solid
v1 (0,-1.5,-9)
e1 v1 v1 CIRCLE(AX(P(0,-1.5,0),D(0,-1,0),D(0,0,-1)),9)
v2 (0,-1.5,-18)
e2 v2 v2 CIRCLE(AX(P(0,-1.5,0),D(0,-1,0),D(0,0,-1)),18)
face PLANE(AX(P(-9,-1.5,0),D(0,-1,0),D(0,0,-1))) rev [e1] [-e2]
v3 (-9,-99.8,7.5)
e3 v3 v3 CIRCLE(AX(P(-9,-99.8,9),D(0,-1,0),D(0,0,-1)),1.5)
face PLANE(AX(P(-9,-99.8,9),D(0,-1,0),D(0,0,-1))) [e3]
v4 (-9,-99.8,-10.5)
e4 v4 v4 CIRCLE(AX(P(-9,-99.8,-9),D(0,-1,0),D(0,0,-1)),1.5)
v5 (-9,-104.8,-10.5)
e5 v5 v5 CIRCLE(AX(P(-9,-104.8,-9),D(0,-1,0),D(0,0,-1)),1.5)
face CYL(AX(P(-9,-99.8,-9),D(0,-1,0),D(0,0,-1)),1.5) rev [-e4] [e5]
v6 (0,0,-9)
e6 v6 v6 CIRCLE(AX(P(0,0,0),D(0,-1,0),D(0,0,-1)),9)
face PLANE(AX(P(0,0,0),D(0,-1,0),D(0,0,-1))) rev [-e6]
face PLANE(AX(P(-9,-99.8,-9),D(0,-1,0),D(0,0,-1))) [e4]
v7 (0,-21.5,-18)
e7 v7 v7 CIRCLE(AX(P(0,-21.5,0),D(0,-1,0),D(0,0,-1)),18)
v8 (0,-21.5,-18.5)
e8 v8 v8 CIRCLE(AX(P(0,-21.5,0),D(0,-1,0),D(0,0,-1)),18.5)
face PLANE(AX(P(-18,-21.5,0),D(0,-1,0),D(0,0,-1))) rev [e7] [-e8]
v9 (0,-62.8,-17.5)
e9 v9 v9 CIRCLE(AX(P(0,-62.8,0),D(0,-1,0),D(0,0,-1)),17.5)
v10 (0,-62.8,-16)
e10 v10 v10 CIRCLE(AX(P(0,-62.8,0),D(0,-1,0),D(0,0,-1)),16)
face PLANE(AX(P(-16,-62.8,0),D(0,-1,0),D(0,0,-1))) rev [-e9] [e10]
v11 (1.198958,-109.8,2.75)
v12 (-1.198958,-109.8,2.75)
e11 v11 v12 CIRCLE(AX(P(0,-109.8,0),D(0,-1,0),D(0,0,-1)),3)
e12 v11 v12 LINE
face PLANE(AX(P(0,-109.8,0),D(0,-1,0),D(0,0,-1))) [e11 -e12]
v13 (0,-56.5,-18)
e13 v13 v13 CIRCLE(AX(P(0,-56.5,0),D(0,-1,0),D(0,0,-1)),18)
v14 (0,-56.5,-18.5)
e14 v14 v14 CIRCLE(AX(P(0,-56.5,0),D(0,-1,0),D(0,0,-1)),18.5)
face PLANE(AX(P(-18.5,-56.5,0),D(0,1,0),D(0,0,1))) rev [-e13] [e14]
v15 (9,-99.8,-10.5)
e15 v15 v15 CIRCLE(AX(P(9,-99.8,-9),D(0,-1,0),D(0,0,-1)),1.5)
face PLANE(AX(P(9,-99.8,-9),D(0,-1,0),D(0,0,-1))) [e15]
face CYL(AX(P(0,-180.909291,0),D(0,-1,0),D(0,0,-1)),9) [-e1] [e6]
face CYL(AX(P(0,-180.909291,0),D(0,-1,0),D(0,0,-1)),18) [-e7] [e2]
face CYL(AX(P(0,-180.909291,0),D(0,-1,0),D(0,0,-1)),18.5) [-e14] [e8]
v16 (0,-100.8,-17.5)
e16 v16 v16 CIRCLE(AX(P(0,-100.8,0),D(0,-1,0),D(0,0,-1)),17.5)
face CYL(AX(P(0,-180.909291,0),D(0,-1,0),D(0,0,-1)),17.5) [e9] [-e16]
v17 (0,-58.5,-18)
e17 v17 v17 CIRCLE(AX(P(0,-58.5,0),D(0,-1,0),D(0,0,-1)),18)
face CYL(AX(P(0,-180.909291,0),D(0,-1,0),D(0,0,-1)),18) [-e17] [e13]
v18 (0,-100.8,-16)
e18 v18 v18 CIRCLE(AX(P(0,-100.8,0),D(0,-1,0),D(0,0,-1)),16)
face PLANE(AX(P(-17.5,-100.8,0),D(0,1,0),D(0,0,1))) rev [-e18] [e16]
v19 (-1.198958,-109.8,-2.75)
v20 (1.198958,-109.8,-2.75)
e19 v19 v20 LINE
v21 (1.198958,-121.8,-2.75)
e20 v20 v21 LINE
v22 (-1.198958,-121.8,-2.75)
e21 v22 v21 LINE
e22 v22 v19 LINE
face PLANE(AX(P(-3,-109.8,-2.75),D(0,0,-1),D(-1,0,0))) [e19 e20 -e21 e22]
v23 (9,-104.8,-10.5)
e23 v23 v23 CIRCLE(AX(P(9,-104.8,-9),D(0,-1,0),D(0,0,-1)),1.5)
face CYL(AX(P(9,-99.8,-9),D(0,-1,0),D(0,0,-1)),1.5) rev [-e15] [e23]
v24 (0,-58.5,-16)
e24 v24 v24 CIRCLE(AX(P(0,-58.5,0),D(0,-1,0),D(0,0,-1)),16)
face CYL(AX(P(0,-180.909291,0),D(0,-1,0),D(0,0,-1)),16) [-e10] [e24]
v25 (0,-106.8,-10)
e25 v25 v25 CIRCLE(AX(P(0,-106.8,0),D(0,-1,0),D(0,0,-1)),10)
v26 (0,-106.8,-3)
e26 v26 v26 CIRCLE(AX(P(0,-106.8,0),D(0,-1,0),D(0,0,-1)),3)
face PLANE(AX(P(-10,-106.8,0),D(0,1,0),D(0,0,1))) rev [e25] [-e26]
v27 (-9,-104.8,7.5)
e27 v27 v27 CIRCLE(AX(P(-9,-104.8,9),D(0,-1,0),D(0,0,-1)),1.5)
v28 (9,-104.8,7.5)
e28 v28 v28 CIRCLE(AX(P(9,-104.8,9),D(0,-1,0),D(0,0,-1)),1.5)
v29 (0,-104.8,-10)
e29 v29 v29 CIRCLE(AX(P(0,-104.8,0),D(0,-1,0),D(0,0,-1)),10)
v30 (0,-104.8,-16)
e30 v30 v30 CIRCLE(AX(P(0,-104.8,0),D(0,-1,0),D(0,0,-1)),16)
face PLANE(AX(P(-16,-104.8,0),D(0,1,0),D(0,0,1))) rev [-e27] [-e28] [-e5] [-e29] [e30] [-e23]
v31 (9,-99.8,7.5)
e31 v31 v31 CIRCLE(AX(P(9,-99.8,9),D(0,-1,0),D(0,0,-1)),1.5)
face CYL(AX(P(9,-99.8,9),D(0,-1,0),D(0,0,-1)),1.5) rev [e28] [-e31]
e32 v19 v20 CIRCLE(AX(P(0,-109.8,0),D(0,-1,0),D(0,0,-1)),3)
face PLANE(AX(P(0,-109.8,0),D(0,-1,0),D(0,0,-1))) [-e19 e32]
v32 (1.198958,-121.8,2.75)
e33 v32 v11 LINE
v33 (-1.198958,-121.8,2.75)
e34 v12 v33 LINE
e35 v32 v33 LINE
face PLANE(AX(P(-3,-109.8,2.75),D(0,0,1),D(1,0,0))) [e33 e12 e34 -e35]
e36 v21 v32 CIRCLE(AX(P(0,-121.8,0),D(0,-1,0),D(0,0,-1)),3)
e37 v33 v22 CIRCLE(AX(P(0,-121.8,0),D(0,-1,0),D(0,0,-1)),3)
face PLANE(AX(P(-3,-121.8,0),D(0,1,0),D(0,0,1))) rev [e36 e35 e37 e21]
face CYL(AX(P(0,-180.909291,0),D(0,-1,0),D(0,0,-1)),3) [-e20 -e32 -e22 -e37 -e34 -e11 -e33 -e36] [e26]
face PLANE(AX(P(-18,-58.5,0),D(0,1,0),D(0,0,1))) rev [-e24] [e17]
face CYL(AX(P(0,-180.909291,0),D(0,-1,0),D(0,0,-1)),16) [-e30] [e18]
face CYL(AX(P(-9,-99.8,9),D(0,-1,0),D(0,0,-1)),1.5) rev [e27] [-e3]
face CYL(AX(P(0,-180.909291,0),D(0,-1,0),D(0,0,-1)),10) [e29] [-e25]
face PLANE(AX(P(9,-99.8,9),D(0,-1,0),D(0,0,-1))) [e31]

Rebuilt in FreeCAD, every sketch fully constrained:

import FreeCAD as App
import Part
import Sketcher

V = App.Vector
Q = App.Units.Quantity


def add_polygon(sketch, points):
    """Adds a closed chain of lines whose ends are joined by coincident constraints."""
    first, n = sketch.GeometryCount, len(points)
    for a, b in zip(points, points[1:] + points[:1]):
        sketch.addGeometry(Part.LineSegment(App.Vector(*a, 0), App.Vector(*b, 0)), False)
    for i in range(n):
        sketch.addConstraint(Sketcher.Constraint("Coincident", first + i, 2, first + (i + 1) % n, 1))

doc = App.newDocument("Part")
body = doc.addObject("PartDesign::Body", "Body")

sketch1 = body.newObject("Sketcher::SketchObject", "Sketch")
sketch1.AttachmentSupport = (doc.getObject("XY_Plane"), [""])
sketch1.MapMode = "FlatFace"
add_polygon(sketch1, [(0, 0), (-9, 0), (-9, -1.5), (-18, -1.5), (-18, -21.5), (-18.5, -21.5), (-18.5, -56.5), (-18, -56.5), (-18, -58.5), (-16, -58.5), (-16, -62.8), (-17.5, -62.8), (-17.5, -100.8), (-16, -100.8), (-16, -104.8), (-10, -104.8), (-10, -106.8), (-3, -106.8), (-3, -121.8), (0, -121.8)])
sketch1.addConstraint(Sketcher.Constraint("Horizontal", 0))
sketch1.addConstraint(Sketcher.Constraint("Vertical", 1))
sketch1.addConstraint(Sketcher.Constraint("Horizontal", 2))
sketch1.addConstraint(Sketcher.Constraint("Vertical", 3))
sketch1.addConstraint(Sketcher.Constraint("Horizontal", 4))
sketch1.addConstraint(Sketcher.Constraint("Vertical", 5))
sketch1.addConstraint(Sketcher.Constraint("Horizontal", 6))
sketch1.addConstraint(Sketcher.Constraint("Vertical", 7))
sketch1.addConstraint(Sketcher.Constraint("Horizontal", 8))
sketch1.addConstraint(Sketcher.Constraint("Vertical", 9))
sketch1.addConstraint(Sketcher.Constraint("Horizontal", 10))
sketch1.addConstraint(Sketcher.Constraint("Vertical", 11))
sketch1.addConstraint(Sketcher.Constraint("Horizontal", 12))
sketch1.addConstraint(Sketcher.Constraint("Vertical", 13))
sketch1.addConstraint(Sketcher.Constraint("Horizontal", 14))
sketch1.addConstraint(Sketcher.Constraint("Vertical", 15))
sketch1.addConstraint(Sketcher.Constraint("Horizontal", 16))
sketch1.addConstraint(Sketcher.Constraint("Vertical", 17))
sketch1.addConstraint(Sketcher.Constraint("Horizontal", 18))
sketch1.addConstraint(Sketcher.Constraint("Vertical", 19))
sketch1.addConstraint(Sketcher.Constraint("Coincident", 19, 2, -1, 1))
sketch1.addConstraint(Sketcher.Constraint("Vertical", 3, 2, 6, 2))
sketch1.addConstraint(Sketcher.Constraint("Vertical", 9, 2, 12, 2))
sketch1.addConstraint(Sketcher.Constraint("Equal", 0, 2))
sketch1.addConstraint(Sketcher.Constraint("Equal", 12, 1))
sketch1.addConstraint(Sketcher.Constraint("Equal", 8, 7))
sketch1.addConstraint(Sketcher.Constraint("Equal", 7, 15))
sketch1.addConstraint(Sketcher.Constraint("DistanceX", 0, 2, 0, 1, Q("9 mm")))
sketch1.addConstraint(Sketcher.Constraint("DistanceX", 8, 1, 8, 2, Q("2 mm")))
sketch1.addConstraint(Sketcher.Constraint("DistanceX", 14, 1, 14, 2, Q("6 mm")))
sketch1.addConstraint(Sketcher.Constraint("DistanceX", 16, 1, 16, 2, Q("7 mm")))
sketch1.addConstraint(Sketcher.Constraint("DistanceY", 3, 2, 3, 1, Q("20 mm")))
sketch1.addConstraint(Sketcher.Constraint("DistanceY", 5, 2, 5, 1, Q("35 mm")))
sketch1.addConstraint(Sketcher.Constraint("DistanceY", 11, 2, 11, 1, Q("38 mm")))
sketch1.addConstraint(Sketcher.Constraint("DistanceY", 13, 2, 13, 1, Q("4 mm")))
sketch1.addConstraint(Sketcher.Constraint("DistanceY", 17, 2, 17, 1, Q("15 mm")))
sketch1.addConstraint(Sketcher.Constraint("DistanceX", 4, 2, 4, 1, Q("0.5 mm")))
sketch1.addConstraint(Sketcher.Constraint("DistanceX", 10, 2, 10, 1, Q("1.5 mm")))
sketch1.addConstraint(Sketcher.Constraint("DistanceY", 9, 2, 9, 1, Q("4.3 mm")))
revolution = body.newObject("PartDesign::Revolution", "Revolution")
revolution.Profile = sketch1
revolution.ReferenceAxis = (sketch1, ["V_Axis"])
revolution.Angle = 360

sketch2 = body.newObject("Sketcher::SketchObject", "Sketch001")
sketch2.AttachmentSupport = (doc.getObject("XZ_Plane"), [""])
sketch2.MapMode = "FlatFace"
sketch2.AttachmentOffset = App.Placement(V(0, 0, 121.8), App.Rotation())
add_polygon(sketch2, [(-33, 33), (-33, -33), (33, -33), (33, 33)])
add_polygon(sketch2, [(3, -3), (-3, -3), (-3, 3), (3, 3)])
sketch2.addConstraint(Sketcher.Constraint("Vertical", 0))
sketch2.addConstraint(Sketcher.Constraint("Horizontal", 1))
sketch2.addConstraint(Sketcher.Constraint("Vertical", 2))
sketch2.addConstraint(Sketcher.Constraint("Horizontal", 3))
sketch2.addConstraint(Sketcher.Constraint("Horizontal", 4))
sketch2.addConstraint(Sketcher.Constraint("Vertical", 5))
sketch2.addConstraint(Sketcher.Constraint("Horizontal", 6))
sketch2.addConstraint(Sketcher.Constraint("Vertical", 7))
sketch2.addConstraint(Sketcher.Constraint("Symmetric", 0, 2, 2, 2, -1, 1))
sketch2.addConstraint(Sketcher.Constraint("Symmetric", 4, 2, 6, 2, -1, 1))
sketch2.addConstraint(Sketcher.Constraint("Equal", 3, 0))
sketch2.addConstraint(Sketcher.Constraint("DistanceX", 4, 2, 4, 1, Q("6 mm")))
sketch2.addConstraint(Sketcher.Constraint("DistanceY", 5, 1, 5, 2, Q("5.5 mm")))
sketch2.addConstraint(Sketcher.Constraint("DistanceX", 1, 1, 1, 2, Q("65.512 mm")))
pocket1 = body.newObject("PartDesign::Pocket", "Pocket")
pocket1.Profile = sketch2
pocket1.Length = 12

sketch3 = body.newObject("Sketcher::SketchObject", "Sketch002")
sketch3.AttachmentSupport = (doc.getObject("XZ_Plane"), [""])
sketch3.MapMode = "FlatFace"
sketch3.AttachmentOffset = App.Placement(V(0, 0, 104.8), App.Rotation())
sketch3.addGeometry(Part.Circle(V(-9, 9, 0), V(0, 0, 1), 1.5), False)
sketch3.addGeometry(Part.Circle(V(9, 9, 0), V(0, 0, 1), 1.5), False)
sketch3.addGeometry(Part.Circle(V(9, -9, 0), V(0, 0, 1), 1.5), False)
sketch3.addGeometry(Part.Circle(V(-9, -9, 0), V(0, 0, 1), 1.5), False)
sketch3.addConstraint(Sketcher.Constraint("Equal", 0, 1))
sketch3.addConstraint(Sketcher.Constraint("Equal", 1, 2))
sketch3.addConstraint(Sketcher.Constraint("Equal", 2, 3))
sketch3.addConstraint(Sketcher.Constraint("Symmetric", 0, 3, 2, 3, -1, 1))
sketch3.addConstraint(Sketcher.Constraint("Symmetric", 1, 3, 3, 3, -1, 1))
sketch3.addConstraint(Sketcher.Constraint("Symmetric", 0, 3, 1, 3, -2))
sketch3.addConstraint(Sketcher.Constraint("Diameter", 0, Q("3 mm")))
sketch3.addConstraint(Sketcher.Constraint("DistanceX", 0, 3, -1, 1, Q("9 mm")))
sketch3.addConstraint(Sketcher.Constraint("DistanceY", -1, 1, 0, 3, Q("9 mm")))
pocket2 = body.newObject("PartDesign::Pocket", "Pocket001")
pocket2.Profile = sketch3
pocket2.Length = 5

doc.recompute()
